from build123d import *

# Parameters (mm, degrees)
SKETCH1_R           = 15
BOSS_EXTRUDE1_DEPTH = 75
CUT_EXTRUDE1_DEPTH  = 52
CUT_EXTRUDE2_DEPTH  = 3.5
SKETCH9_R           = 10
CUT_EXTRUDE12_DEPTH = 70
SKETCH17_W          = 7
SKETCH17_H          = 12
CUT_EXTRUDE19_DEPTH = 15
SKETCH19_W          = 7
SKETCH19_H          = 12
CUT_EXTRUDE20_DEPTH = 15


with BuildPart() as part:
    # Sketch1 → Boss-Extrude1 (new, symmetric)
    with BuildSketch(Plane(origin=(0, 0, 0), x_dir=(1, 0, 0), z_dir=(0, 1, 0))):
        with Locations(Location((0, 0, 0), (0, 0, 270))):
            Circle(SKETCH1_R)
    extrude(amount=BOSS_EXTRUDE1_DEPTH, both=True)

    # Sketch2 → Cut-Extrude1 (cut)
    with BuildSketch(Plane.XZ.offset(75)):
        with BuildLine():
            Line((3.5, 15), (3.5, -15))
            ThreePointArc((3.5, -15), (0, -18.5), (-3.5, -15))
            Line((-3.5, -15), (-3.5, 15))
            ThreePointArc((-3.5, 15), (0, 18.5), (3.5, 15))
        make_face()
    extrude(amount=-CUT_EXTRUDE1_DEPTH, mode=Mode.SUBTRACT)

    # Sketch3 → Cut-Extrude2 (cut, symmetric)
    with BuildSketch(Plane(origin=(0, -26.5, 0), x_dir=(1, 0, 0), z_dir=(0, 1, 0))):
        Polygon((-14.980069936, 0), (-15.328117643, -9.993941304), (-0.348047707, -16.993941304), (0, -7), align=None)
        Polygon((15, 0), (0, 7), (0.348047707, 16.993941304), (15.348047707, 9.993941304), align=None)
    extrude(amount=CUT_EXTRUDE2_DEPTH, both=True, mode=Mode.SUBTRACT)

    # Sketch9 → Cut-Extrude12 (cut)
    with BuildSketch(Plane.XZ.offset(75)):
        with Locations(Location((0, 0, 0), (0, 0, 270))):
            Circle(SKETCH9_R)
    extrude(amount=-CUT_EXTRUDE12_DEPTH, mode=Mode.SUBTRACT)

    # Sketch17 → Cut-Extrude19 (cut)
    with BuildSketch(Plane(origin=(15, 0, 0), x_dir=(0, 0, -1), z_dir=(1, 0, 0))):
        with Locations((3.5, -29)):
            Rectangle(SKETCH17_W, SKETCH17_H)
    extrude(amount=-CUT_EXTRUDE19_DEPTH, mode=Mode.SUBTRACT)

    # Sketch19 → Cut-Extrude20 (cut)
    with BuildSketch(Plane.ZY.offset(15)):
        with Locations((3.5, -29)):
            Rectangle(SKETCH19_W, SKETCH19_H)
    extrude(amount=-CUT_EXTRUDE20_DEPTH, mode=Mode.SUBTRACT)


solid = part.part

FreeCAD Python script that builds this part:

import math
import FreeCAD as App
import Part
import Sketcher

V = App.Vector
Q = App.Units.Quantity


def add_polygon(sketch, points):
    """Adds a closed chain of lines whose ends are joined by coincident constraints."""
    first, n = sketch.GeometryCount, len(points)
    for a, b in zip(points, points[1:] + points[:1]):
        sketch.addGeometry(Part.LineSegment(App.Vector(*a, 0), App.Vector(*b, 0)), False)
    for i in range(n):
        sketch.addConstraint(Sketcher.Constraint("Coincident", first + i, 2, first + (i + 1) % n, 1))

doc = App.newDocument("Part")
body = doc.addObject("PartDesign::Body", "Body")

# Sketch on XZ plane
sketch1 = body.newObject("Sketcher::SketchObject", "Sketch")
sketch1.AttachmentSupport = (doc.getObject("XZ_Plane"), [""])
sketch1.MapMode = "FlatFace"
sketch1.addGeometry(Part.Circle(V(0, 0, 0), V(0, 0, 1), 15), False)
sketch1.addConstraint([
    Sketcher.Constraint("Coincident", 0, 3, -1, 1),
    Sketcher.Constraint("Diameter", 0, Q("30 mm")),
])
pad1 = body.newObject("PartDesign::Pad", "Pad")
pad1.Profile = sketch1
pad1.Length = 150
pad1.Midplane = True

# Sketch on XZ plane
sketch2 = body.newObject("Sketcher::SketchObject", "Sketch001")
sketch2.AttachmentSupport = (doc.getObject("XZ_Plane"), [""])
sketch2.MapMode = "FlatFace"
sketch2.AttachmentOffset = App.Placement(V(0, 0, 75), App.Rotation())
sketch2.addGeometry([
    Part.LineSegment(V(3.5, -15, 0), V(3.5, 15, 0)),
    Part.ArcOfCircle(Part.Circle(V(0, 15, 0), V(0, 0, 1), 3.5), math.radians(0), math.radians(180)),
    Part.LineSegment(V(-3.5, 15, 0), V(-3.5, -15, 0)),
    Part.ArcOfCircle(Part.Circle(V(0, -15, 0), V(0, 0, 1), 3.5), math.radians(180), math.radians(360)),
], False)
sketch2.addConstraint([
    Sketcher.Constraint("Tangent", 0, 2, 1, 1),
    Sketcher.Constraint("Tangent", 1, 2, 2, 1),
    Sketcher.Constraint("Tangent", 2, 2, 3, 1),
    Sketcher.Constraint("Tangent", 3, 2, 0, 1),
    Sketcher.Constraint("Vertical", 0),
    Sketcher.Constraint("Vertical", 2),
    Sketcher.Constraint("Symmetric", 1, 3, 3, 3, -1, 1),
    Sketcher.Constraint("Radius", 1, Q("3.5 mm")),
    Sketcher.Constraint("DistanceY", 0, 1, 0, 2, Q("30 mm")),
])
pocket1 = body.newObject("PartDesign::Pocket", "Pocket")
pocket1.Profile = sketch2
pocket1.Length = 52

# Sketch on XZ plane
sketch3 = body.newObject("Sketcher::SketchObject", "Sketch002")
sketch3.AttachmentSupport = (doc.getObject("XZ_Plane"), [""])
sketch3.MapMode = "FlatFace"
sketch3.AttachmentOffset = App.Placement(V(0, 0, 26.5), App.Rotation())
add_polygon(sketch3, [(-14.98007, 0), (-15.328118, 9.993941), (-0.348048, 16.993941), (0, 7)])  # lines 0-3
add_polygon(sketch3, [(0, -7), (15, 0), (15.348048, -9.993941), (0.348048, -16.993941)])  # lines 4-7
sketch3.addConstraint([
    Sketcher.Constraint("Symmetric", 1, 2, 6, 2, -1, 1),
    Sketcher.Constraint("Symmetric", 2, 2, 7, 2, -1, 1),
    Sketcher.Constraint("PointOnObject", 2, 2, -2),
    Sketcher.Constraint("PointOnObject", 3, 2, -1),
    Sketcher.Constraint("PointOnObject", 4, 2, -1),
    Sketcher.Constraint("Parallel", 0, 2),
    Sketcher.Constraint("Parallel", 1, 3),
    Sketcher.Constraint("Parallel", 2, 5),
    Sketcher.Constraint("Parallel", 4, 6),
    Sketcher.Constraint("Distance", 0, Q("10 mm")),
    Sketcher.Constraint("DistanceY", -1, 1, 2, 2, Q("7 mm")),
    Sketcher.Constraint("DistanceX", -1, 1, 4, 2, Q("15 mm")),
    Sketcher.Constraint("DistanceY", -1, 1, 0, 2, Q("9.993941 mm")),
    Sketcher.Constraint("DistanceX", 3, 2, -1, 1, Q("14.98007 mm")),
])
pocket2 = body.newObject("PartDesign::Pocket", "Pocket001")
pocket2.Profile = sketch3
pocket2.Length = 7
pocket2.Midplane = True

# Sketch on XZ plane
sketch4 = body.newObject("Sketcher::SketchObject", "Sketch003")
sketch4.AttachmentSupport = (doc.getObject("XZ_Plane"), [""])
sketch4.MapMode = "FlatFace"
sketch4.AttachmentOffset = App.Placement(V(0, 0, 75), App.Rotation())
sketch4.addGeometry(Part.Circle(V(0, 0, 0), V(0, 0, 1), 10), False)
sketch4.addConstraint([
    Sketcher.Constraint("Coincident", 0, 3, -1, 1),
    Sketcher.Constraint("Diameter", 0, Q("20 mm")),
])
pocket3 = body.newObject("PartDesign::Pocket", "Pocket002")
pocket3.Profile = sketch4
pocket3.Length = 70

# Sketch on YZ plane
sketch5 = body.newObject("Sketcher::SketchObject", "Sketch004")
sketch5.AttachmentSupport = (doc.getObject("YZ_Plane"), [""])
sketch5.MapMode = "FlatFace"
sketch5.AttachmentOffset = App.Placement(V(0, 0, 15), App.Rotation())
add_polygon(sketch5, [(-23, 0), (-35, 0), (-35, -7), (-23, -7)])  # lines 0-3
sketch5.addConstraint([
    Sketcher.Constraint("Horizontal", 0),
    Sketcher.Constraint("Vertical", 1),
    Sketcher.Constraint("Horizontal", 2),
    Sketcher.Constraint("Vertical", 3),
    Sketcher.Constraint("PointOnObject", 0, 2, -1),
    Sketcher.Constraint("DistanceX", 0, 2, 0, 1, Q("12 mm")),
    Sketcher.Constraint("DistanceY", 1, 2, 1, 1, Q("7 mm")),
    Sketcher.Constraint("DistanceX", 0, 2, -1, 1, Q("35 mm")),
])
pocket4 = body.newObject("PartDesign::Pocket", "Pocket003")
pocket4.Profile = sketch5
pocket4.Length = 15

# Sketch on YZ plane
sketch6 = body.newObject("Sketcher::SketchObject", "Sketch005")
sketch6.AttachmentSupport = (doc.getObject("YZ_Plane"), [""])
sketch6.MapMode = "FlatFace"
sketch6.AttachmentOffset = App.Placement(V(0, 0, -15), App.Rotation())
add_polygon(sketch6, [(-23, 0), (-35, 0), (-35, 7), (-23, 7)])  # lines 0-3
sketch6.addConstraint([
    Sketcher.Constraint("Horizontal", 0),
    Sketcher.Constraint("Vertical", 1),
    Sketcher.Constraint("Horizontal", 2),
    Sketcher.Constraint("Vertical", 3),
    Sketcher.Constraint("PointOnObject", 0, 2, -1),
    Sketcher.Constraint("DistanceX", 0, 2, 0, 1, Q("12 mm")),
    Sketcher.Constraint("DistanceY", 1, 1, 1, 2, Q("7 mm")),
    Sketcher.Constraint("DistanceX", 0, 2, -1, 1, Q("35 mm")),
])
pocket5 = body.newObject("PartDesign::Pocket", "Pocket004")
pocket5.Profile = sketch6
pocket5.Length = 15
pocket5.Reversed = True

doc.recompute()
